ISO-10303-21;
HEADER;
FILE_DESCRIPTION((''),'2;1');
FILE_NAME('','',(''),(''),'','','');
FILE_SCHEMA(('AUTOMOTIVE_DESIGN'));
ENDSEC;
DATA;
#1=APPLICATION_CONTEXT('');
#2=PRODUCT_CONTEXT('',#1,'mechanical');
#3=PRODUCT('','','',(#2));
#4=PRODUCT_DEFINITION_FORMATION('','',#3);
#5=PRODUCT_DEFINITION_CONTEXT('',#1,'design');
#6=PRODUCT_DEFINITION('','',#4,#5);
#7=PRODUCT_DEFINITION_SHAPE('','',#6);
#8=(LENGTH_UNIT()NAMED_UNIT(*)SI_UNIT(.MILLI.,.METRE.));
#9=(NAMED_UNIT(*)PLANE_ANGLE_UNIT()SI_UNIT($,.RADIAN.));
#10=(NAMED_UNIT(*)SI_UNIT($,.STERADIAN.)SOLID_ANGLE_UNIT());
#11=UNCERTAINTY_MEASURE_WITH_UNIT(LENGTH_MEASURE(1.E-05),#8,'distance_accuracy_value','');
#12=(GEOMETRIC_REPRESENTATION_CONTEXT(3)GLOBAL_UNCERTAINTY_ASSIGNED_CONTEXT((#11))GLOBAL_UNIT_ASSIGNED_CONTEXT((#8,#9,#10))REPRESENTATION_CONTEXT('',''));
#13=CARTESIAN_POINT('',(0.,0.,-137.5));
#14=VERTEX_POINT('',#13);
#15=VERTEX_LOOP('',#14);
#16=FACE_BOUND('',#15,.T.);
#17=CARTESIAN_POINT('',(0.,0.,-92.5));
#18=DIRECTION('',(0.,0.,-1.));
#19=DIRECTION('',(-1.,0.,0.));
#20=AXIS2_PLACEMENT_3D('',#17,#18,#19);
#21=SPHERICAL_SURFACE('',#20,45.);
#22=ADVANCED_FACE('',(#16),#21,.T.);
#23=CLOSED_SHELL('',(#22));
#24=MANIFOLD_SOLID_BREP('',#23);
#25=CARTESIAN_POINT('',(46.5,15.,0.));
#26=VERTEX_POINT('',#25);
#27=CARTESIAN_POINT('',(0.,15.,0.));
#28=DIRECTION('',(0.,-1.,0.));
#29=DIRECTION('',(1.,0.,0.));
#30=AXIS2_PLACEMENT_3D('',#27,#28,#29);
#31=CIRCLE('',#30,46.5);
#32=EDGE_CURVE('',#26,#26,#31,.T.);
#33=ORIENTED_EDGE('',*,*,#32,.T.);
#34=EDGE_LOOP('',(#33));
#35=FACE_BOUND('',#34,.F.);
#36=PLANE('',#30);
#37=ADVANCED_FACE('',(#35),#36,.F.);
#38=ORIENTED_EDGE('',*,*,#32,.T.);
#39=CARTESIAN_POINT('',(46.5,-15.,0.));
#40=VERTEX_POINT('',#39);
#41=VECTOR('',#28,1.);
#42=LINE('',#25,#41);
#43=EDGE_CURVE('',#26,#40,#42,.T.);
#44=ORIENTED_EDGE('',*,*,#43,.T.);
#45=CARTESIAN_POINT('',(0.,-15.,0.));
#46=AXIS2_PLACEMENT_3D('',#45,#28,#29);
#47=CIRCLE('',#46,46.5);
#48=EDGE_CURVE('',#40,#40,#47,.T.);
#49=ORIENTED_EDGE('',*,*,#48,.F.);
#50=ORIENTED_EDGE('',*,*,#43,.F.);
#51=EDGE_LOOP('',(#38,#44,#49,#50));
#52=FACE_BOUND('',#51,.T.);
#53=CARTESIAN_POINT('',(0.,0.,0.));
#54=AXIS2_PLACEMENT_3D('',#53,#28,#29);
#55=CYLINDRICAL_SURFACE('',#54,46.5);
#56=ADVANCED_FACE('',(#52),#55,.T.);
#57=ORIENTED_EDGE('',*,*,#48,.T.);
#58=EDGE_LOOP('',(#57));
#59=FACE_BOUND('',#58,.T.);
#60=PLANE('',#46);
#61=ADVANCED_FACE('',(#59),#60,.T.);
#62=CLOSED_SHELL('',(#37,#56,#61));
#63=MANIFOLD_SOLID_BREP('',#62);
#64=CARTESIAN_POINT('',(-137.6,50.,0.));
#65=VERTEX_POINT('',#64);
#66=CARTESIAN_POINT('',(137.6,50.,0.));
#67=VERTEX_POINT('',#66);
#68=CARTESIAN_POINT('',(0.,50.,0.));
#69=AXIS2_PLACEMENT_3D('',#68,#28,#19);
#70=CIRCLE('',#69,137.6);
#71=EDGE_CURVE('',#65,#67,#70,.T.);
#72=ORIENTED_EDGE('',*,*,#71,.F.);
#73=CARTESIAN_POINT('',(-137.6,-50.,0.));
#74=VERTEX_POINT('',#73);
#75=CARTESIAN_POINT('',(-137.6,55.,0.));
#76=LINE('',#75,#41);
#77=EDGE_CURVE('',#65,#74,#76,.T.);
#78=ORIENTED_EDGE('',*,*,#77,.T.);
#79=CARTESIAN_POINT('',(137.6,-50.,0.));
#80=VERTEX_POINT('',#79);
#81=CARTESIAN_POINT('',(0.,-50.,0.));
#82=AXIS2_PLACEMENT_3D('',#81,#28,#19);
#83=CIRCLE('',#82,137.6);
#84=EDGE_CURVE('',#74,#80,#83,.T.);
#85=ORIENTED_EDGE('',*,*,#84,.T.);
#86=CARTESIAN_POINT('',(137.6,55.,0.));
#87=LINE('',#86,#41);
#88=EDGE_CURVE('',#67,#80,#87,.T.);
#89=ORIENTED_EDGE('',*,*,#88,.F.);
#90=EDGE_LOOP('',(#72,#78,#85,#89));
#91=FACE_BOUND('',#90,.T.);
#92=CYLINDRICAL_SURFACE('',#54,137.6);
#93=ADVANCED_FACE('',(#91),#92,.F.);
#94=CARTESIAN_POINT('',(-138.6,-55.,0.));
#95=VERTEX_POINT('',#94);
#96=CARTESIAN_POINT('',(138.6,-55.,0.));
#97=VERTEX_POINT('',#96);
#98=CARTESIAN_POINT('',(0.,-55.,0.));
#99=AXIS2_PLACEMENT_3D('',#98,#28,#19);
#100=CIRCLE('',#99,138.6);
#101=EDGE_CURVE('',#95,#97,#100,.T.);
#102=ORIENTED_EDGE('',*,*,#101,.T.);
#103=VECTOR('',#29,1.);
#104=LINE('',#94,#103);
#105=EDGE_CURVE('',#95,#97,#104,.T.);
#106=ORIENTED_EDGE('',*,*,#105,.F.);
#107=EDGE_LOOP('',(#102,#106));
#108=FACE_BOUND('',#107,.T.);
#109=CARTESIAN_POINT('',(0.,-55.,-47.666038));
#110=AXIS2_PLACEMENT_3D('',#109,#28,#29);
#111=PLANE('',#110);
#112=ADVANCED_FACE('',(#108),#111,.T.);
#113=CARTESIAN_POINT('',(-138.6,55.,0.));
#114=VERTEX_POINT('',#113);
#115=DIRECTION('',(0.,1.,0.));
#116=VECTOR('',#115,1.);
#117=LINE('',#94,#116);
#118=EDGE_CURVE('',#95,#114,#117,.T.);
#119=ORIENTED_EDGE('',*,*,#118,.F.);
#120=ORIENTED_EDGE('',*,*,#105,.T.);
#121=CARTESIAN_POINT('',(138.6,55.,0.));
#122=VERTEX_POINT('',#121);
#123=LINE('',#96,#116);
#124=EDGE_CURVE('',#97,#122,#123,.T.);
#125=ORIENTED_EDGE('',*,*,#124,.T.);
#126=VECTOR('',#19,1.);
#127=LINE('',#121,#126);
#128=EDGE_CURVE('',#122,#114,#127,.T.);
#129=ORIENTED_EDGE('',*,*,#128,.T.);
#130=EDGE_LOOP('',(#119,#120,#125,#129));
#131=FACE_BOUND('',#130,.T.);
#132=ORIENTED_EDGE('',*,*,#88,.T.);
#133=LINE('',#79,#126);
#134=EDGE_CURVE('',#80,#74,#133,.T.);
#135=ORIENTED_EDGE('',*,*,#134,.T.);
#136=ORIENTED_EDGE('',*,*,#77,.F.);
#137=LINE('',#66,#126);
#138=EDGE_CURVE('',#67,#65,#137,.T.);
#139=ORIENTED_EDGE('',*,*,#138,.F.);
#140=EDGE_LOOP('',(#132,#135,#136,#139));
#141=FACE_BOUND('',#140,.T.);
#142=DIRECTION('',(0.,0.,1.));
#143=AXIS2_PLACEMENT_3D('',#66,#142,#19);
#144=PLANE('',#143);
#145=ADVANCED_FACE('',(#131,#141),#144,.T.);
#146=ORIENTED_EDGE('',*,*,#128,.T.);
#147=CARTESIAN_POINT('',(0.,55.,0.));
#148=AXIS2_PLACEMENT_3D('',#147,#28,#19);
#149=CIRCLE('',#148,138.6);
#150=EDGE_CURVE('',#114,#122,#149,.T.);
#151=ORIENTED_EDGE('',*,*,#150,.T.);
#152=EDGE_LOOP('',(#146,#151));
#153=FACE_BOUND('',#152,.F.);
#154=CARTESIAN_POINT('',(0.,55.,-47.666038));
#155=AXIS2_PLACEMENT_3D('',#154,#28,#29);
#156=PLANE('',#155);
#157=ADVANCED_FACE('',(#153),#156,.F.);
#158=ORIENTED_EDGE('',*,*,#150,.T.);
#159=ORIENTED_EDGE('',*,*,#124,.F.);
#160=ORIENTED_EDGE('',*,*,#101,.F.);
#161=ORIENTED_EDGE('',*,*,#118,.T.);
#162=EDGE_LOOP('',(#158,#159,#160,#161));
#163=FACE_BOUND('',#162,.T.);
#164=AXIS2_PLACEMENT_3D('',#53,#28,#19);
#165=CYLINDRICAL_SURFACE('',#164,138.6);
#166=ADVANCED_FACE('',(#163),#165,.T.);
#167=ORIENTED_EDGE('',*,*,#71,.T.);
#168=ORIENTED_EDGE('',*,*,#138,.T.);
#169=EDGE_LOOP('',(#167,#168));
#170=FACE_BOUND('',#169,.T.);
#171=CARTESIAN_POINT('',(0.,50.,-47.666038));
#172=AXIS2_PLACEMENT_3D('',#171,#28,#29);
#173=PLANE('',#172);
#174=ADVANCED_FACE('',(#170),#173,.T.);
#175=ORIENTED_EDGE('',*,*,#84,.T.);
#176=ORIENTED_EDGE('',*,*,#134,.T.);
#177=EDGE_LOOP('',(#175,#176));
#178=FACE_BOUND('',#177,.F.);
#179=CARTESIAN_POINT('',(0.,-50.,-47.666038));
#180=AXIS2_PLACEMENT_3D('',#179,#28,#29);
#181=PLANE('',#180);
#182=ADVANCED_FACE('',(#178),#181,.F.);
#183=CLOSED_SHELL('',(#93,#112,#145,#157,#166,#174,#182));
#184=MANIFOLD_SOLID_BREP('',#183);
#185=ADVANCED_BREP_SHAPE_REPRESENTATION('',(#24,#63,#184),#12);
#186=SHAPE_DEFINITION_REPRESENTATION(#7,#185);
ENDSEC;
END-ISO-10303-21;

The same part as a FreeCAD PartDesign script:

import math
import FreeCAD as App
import Part
import Sketcher
from FreeCAD import Vector
Q = App.Units.Quantity

doc = App.newDocument("Part")
body = doc.addObject("PartDesign::Body", "Body")

# Sketch on XZ plane
sketch1 = body.newObject("Sketcher::SketchObject", "Sketch")
sketch1.AttachmentSupport = (doc.getObject("XZ_Plane"), [""])
sketch1.MapMode = "FlatFace"
sketch1.addGeometry(Part.Circle(Vector(0, 0, 0), Vector(0, 0, 1), 46.5), False)
sketch1.addConstraint([
    Sketcher.Constraint("Coincident", 0, 3, -1, 1),
    Sketcher.Constraint("Diameter", 0, Q("93 mm")),
])
pad1 = body.newObject("PartDesign::Pad", "Pad")
pad1.Profile = sketch1
pad1.Length = 30
pad1.Midplane = True
body2 = doc.addObject("PartDesign::Body", "Body001")

# Sketch on XZ plane
sketch2 = body2.newObject("Sketcher::SketchObject", "Sketch001")
sketch2.AttachmentSupport = (doc.getObject("XZ_Plane001"), [""])
sketch2.MapMode = "FlatFace"
sketch2.addGeometry([
    Part.LineSegment(Vector(0, -137.5, 0), Vector(0, -47.5, 0)),
    Part.ArcOfCircle(Part.Circle(Vector(0, -92.5, 0), Vector(0, 0, 1), 45), math.radians(90), math.radians(270)),
], False)
sketch2.addConstraint([
    Sketcher.Constraint("Coincident", 0, 1, 1, 2),
    Sketcher.Constraint("Coincident", 1, 1, 0, 2),
    Sketcher.Constraint("Vertical", 0),
    Sketcher.Constraint("PointOnObject", 1, 3, -2),
    Sketcher.Constraint("PointOnObject", 0, 1, -2),
    Sketcher.Constraint("Radius", 1, Q("45 mm")),
    Sketcher.Constraint("DistanceY", 1, 3, -1, 1, Q("92.5 mm")),
])
revolution = body2.newObject("PartDesign::Revolution", "Revolution")
revolution.Profile = sketch2
revolution.ReferenceAxis = (sketch2, ["V_Axis"])
revolution.Angle = 360
body3 = doc.addObject("PartDesign::Body", "Body002")

# Sketch on XZ plane
sketch3 = body3.newObject("Sketcher::SketchObject", "Sketch002")
sketch3.AttachmentSupport = (doc.getObject("XZ_Plane002"), [""])
sketch3.MapMode = "FlatFace"
sketch3.addGeometry([
    Part.LineSegment(Vector(138.6, 0, 0), Vector(137.6, 0, 0)),
    Part.ArcOfCircle(Part.Circle(Vector(0, 0, 0), Vector(0, 0, 1), 137.6), math.radians(180), math.radians(360)),
    Part.LineSegment(Vector(-137.6, 0, 0), Vector(-138.6, 0, 0)),
    Part.ArcOfCircle(Part.Circle(Vector(0, 0, 0), Vector(0, 0, 1), 138.6), math.radians(180), math.radians(360)),
], False)
sketch3.addConstraint([
    Sketcher.Constraint("Coincident", 0, 2, 1, 2),
    Sketcher.Constraint("Coincident", 1, 1, 2, 1),
    Sketcher.Constraint("Coincident", 2, 2, 3, 1),
    Sketcher.Constraint("Coincident", 3, 2, 0, 1),
    Sketcher.Constraint("Horizontal", 0),
    Sketcher.Constraint("Horizontal", 2),
    Sketcher.Constraint("Coincident", 1, 3, -1, 1),
    Sketcher.Constraint("Coincident", 3, 3, -1, 1),
    Sketcher.Constraint("PointOnObject", 0, 2, -1),
    Sketcher.Constraint("PointOnObject", 1, 1, -1),
    Sketcher.Constraint("Radius", 1, Q("137.6 mm")),
    Sketcher.Constraint("Radius", 3, Q("138.6 mm")),
])
pad2 = body3.newObject("PartDesign::Pad", "Pad001")
pad2.Profile = sketch3
pad2.Length = 110
pad2.Midplane = True

# Sketch on XZ plane
sketch4 = body3.newObject("Sketcher::SketchObject", "Sketch003")
sketch4.AttachmentSupport = (doc.getObject("XZ_Plane002"), [""])
sketch4.MapMode = "FlatFace"
sketch4.AttachmentOffset = App.Placement(Vector(0, 0, 50), App.Rotation())
sketch4.addGeometry([
    Part.ArcOfCircle(Part.Circle(Vector(0, 0, 0), Vector(0, 0, 1), 137.6), math.radians(180), math.radians(360)),
    Part.LineSegment(Vector(137.6, 0, 0), Vector(-137.6, 0, 0)),
], False)
sketch4.addConstraint([
    Sketcher.Constraint("Coincident", 0, 1, 1, 2),
    Sketcher.Constraint("Coincident", 1, 1, 0, 2),
    Sketcher.Constraint("Horizontal", 1),
    Sketcher.Constraint("Coincident", 0, 3, -1, 1),
    Sketcher.Constraint("PointOnObject", 0, 1, -1),
    Sketcher.Constraint("Radius", 0, Q("137.6 mm")),
])
pad3 = body3.newObject("PartDesign::Pad", "Pad002")
pad3.Profile = sketch4
pad3.Length = 5

# Sketch on XZ plane
sketch5 = body3.newObject("Sketcher::SketchObject", "Sketch004")
sketch5.AttachmentSupport = (doc.getObject("XZ_Plane002"), [""])
sketch5.MapMode = "FlatFace"
sketch5.AttachmentOffset = App.Placement(Vector(0, 0, -50), App.Rotation())
sketch5.addGeometry([
    Part.ArcOfCircle(Part.Circle(Vector(0, 0, 0), Vector(0, 0, 1), 137.6), math.radians(180), math.radians(360)),
    Part.LineSegment(Vector(137.6, 0, 0), Vector(-137.6, 0, 0)),
], False)
sketch5.addConstraint([
    Sketcher.Constraint("Coincident", 0, 1, 1, 2),
    Sketcher.Constraint("Coincident", 1, 1, 0, 2),
    Sketcher.Constraint("Horizontal", 1),
    Sketcher.Constraint("Coincident", 0, 3, -1, 1),
    Sketcher.Constraint("PointOnObject", 0, 1, -1),
    Sketcher.Constraint("Radius", 0, Q("137.6 mm")),
])
pad4 = body3.newObject("PartDesign::Pad", "Pad003")
pad4.Profile = sketch5
pad4.Length = 5
pad4.Reversed = True

doc.recompute()
